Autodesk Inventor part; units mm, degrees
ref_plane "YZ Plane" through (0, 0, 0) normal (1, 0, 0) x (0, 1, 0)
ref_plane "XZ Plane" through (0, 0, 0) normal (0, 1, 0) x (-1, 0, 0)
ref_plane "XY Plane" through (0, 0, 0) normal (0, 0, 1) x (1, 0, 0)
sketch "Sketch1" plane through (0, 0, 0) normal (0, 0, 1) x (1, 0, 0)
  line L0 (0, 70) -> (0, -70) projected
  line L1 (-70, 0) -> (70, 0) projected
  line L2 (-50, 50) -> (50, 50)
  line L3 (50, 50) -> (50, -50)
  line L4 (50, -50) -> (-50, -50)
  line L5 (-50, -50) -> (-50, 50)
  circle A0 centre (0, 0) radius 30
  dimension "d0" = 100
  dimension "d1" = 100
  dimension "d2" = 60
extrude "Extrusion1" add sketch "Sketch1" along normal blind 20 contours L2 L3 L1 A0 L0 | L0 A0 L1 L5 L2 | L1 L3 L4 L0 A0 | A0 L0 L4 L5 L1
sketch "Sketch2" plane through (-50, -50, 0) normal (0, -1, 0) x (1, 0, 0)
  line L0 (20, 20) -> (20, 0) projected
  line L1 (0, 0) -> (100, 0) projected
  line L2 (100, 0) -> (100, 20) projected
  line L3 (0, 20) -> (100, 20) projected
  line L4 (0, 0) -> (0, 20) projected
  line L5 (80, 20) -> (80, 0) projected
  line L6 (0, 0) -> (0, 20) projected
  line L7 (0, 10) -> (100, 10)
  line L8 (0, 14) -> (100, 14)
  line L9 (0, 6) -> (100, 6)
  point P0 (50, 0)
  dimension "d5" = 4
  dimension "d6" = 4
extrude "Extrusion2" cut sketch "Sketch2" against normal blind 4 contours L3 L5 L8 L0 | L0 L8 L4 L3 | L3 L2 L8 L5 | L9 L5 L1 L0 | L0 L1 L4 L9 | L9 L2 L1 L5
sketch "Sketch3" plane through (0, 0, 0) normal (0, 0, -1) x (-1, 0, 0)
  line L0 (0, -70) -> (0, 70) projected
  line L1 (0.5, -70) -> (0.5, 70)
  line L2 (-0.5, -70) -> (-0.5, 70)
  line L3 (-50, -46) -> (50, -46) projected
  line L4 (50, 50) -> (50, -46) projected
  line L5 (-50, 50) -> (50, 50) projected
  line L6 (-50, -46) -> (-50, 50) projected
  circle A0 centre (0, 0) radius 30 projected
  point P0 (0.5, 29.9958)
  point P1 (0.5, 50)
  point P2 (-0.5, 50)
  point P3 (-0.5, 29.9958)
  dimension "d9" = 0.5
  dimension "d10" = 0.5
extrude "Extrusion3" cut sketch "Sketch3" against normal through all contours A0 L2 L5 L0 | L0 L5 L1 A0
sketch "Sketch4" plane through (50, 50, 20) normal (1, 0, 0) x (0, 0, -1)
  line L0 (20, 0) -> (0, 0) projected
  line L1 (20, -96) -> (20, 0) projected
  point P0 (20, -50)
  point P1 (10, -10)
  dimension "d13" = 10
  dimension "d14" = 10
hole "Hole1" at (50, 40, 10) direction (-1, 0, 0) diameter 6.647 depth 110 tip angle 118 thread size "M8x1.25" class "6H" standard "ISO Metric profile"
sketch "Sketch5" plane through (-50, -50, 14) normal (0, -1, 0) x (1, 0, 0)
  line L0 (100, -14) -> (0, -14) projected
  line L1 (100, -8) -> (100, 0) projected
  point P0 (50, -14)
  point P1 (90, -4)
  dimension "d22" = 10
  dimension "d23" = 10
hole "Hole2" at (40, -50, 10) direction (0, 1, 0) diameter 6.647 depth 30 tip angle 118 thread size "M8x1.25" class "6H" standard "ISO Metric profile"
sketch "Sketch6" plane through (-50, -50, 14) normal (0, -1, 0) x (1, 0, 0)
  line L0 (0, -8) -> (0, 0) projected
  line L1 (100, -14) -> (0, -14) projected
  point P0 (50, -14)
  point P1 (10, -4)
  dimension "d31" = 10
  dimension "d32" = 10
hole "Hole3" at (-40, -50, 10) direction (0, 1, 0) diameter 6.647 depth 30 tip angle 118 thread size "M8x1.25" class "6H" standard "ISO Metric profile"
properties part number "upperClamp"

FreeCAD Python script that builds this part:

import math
import FreeCAD as App
import Part
import Sketcher
Q = App.Units.Quantity

doc = App.newDocument("Part")
body = doc.addObject("PartDesign::Body", "Body")

# Sketch on XY plane
sketch1 = body.newObject("Sketcher::SketchObject", "Sketch")
sketch1.AttachmentSupport = (doc.getObject("XY_Plane"), [""])
sketch1.MapMode = "FlatFace"
sketch1.addGeometry([
    Part.LineSegment(App.Vector(50, 50, 0), App.Vector(-50, 50, 0)),  # 0
    Part.LineSegment(App.Vector(-50, 50, 0), App.Vector(-50, -50, 0)),  # 1
    Part.LineSegment(App.Vector(-50, -50, 0), App.Vector(50, -50, 0)),  # 2
    Part.LineSegment(App.Vector(50, -50, 0), App.Vector(50, 50, 0)),  # 3
    Part.Circle(App.Vector(0, 0, 0), App.Vector(0, 0, 1), 30),  # 4
], False)
sketch1.addConstraint([
    Sketcher.Constraint("Coincident", 0, 2, 1, 1),
    Sketcher.Constraint("Coincident", 1, 2, 2, 1),
    Sketcher.Constraint("Coincident", 2, 2, 3, 1),
    Sketcher.Constraint("Coincident", 3, 2, 0, 1),
    Sketcher.Constraint("Horizontal", 0),
    Sketcher.Constraint("Vertical", 1),
    Sketcher.Constraint("Horizontal", 2),
    Sketcher.Constraint("Vertical", 3),
    Sketcher.Constraint("Coincident", 4, 3, -1, 1),
    Sketcher.Constraint("Symmetric", 0, 2, 2, 2, -1, 1),
    Sketcher.Constraint("Equal", 2, 1),
    Sketcher.Constraint("Diameter", 4, Q("60 mm")),
    Sketcher.Constraint("DistanceX", 0, 2, 0, 1, Q("100 mm")),
])
pad1 = body.newObject("PartDesign::Pad", "Pad")
pad1.Profile = sketch1
pad1.Length = 20

# Sketch on XZ plane
sketch2 = body.newObject("Sketcher::SketchObject", "Sketch001")
sketch2.AttachmentSupport = (doc.getObject("XZ_Plane"), [""])
sketch2.MapMode = "FlatFace"
sketch2.AttachmentOffset = App.Placement(App.Vector(0, 0, 50), App.Rotation())
sketch2.addGeometry([
    Part.LineSegment(App.Vector(-50, 20, 0), App.Vector(-50, 14, 0)),  # 0
    Part.LineSegment(App.Vector(-50, 14, 0), App.Vector(50, 14, 0)),  # 1
    Part.LineSegment(App.Vector(50, 14, 0), App.Vector(50, 20, 0)),  # 2
    Part.LineSegment(App.Vector(50, 20, 0), App.Vector(-50, 20, 0)),  # 3
    Part.LineSegment(App.Vector(-50, 6, 0), App.Vector(-50, 0, 0)),  # 4
    Part.LineSegment(App.Vector(-50, 0, 0), App.Vector(50, 0, 0)),  # 5
    Part.LineSegment(App.Vector(50, 0, 0), App.Vector(50, 6, 0)),  # 6
    Part.LineSegment(App.Vector(50, 6, 0), App.Vector(-50, 6, 0)),  # 7
], False)
sketch2.addConstraint([
    Sketcher.Constraint("Coincident", 0, 2, 1, 1),
    Sketcher.Constraint("Coincident", 1, 2, 2, 1),
    Sketcher.Constraint("Coincident", 2, 2, 3, 1),
    Sketcher.Constraint("Coincident", 3, 2, 0, 1),
    Sketcher.Constraint("Coincident", 4, 2, 5, 1),
    Sketcher.Constraint("Coincident", 5, 2, 6, 1),
    Sketcher.Constraint("Coincident", 6, 2, 7, 1),
    Sketcher.Constraint("Coincident", 7, 2, 4, 1),
    Sketcher.Constraint("Vertical", 0),
    Sketcher.Constraint("Horizontal", 1),
    Sketcher.Constraint("Vertical", 2),
    Sketcher.Constraint("Horizontal", 3),
    Sketcher.Constraint("Vertical", 4),
    Sketcher.Constraint("Horizontal", 5),
    Sketcher.Constraint("Vertical", 6),
    Sketcher.Constraint("Horizontal", 7),
    Sketcher.Constraint("Symmetric", 4, 2, 5, 2, -1, 1),
    Sketcher.Constraint("Vertical", 3, 2, 4, 2),
    Sketcher.Constraint("Vertical", 2, 2, 5, 2),
    Sketcher.Constraint("Equal", 2, 4),
    Sketcher.Constraint("DistanceX", 1, 1, 1, 2, Q("100 mm")),
    Sketcher.Constraint("DistanceY", 0, 2, 0, 1, Q("6 mm")),
    Sketcher.Constraint("DistanceY", -1, 1, 0, 2, Q("14 mm")),
])
pocket1 = body.newObject("PartDesign::Pocket", "Pocket")
pocket1.Profile = sketch2
pocket1.Length = 4

# Sketch on XY plane
sketch3 = body.newObject("Sketcher::SketchObject", "Sketch002")
sketch3.AttachmentSupport = (doc.getObject("XY_Plane"), [""])
sketch3.MapMode = "FlatFace"
sketch3.addGeometry([
    Part.ArcOfCircle(Part.Circle(App.Vector(0, 0, 0), App.Vector(0, 0, 1), 30), math.radians(89.045026), math.radians(90.954974)),
    Part.LineSegment(App.Vector(-0.5, 29.995833, 0), App.Vector(-0.5, 50, 0)),
    Part.LineSegment(App.Vector(-0.5, 50, 0), App.Vector(0.5, 50, 0)),
    Part.LineSegment(App.Vector(0.5, 50, 0), App.Vector(0.5, 29.995833, 0)),
], False)
sketch3.addConstraint([
    Sketcher.Constraint("Coincident", 0, 2, 1, 1),
    Sketcher.Constraint("Coincident", 1, 2, 2, 1),
    Sketcher.Constraint("Coincident", 2, 2, 3, 1),
    Sketcher.Constraint("Coincident", 3, 2, 0, 1),
    Sketcher.Constraint("Vertical", 1),
    Sketcher.Constraint("Horizontal", 2),
    Sketcher.Constraint("Vertical", 3),
    Sketcher.Constraint("Coincident", 0, 3, -1, 1),
    Sketcher.Constraint("Horizontal", 0, 2, 3, 2),
    Sketcher.Constraint("Radius", 0, Q("30 mm")),
    Sketcher.Constraint("DistanceX", 0, 2, -1, 1, Q("0.5 mm")),
    Sketcher.Constraint("DistanceY", -1, 1, 1, 2, Q("50 mm")),
])
pocket2 = body.newObject("PartDesign::Pocket", "Pocket001")
pocket2.Profile = sketch3
pocket2.Type = "ThroughAll"
pocket2.Reversed = True

# Sketch on YZ plane
sketch4 = body.newObject("Sketcher::SketchObject", "Sketch003")
sketch4.AttachmentSupport = (doc.getObject("YZ_Plane"), [""])
sketch4.MapMode = "FlatFace"
sketch4.AttachmentOffset = App.Placement(App.Vector(0, 0, 50), App.Rotation())
sketch4.addGeometry(Part.Circle(App.Vector(40, 10, 0), App.Vector(0, 0, 1), 3.3235), False)
sketch4.addConstraint([
    Sketcher.Constraint("Diameter", 0, Q("6.647 mm")),
    Sketcher.Constraint("DistanceX", -1, 1, 0, 3, Q("40 mm")),
    Sketcher.Constraint("DistanceY", -1, 1, 0, 3, Q("10 mm")),
])
doc.recompute()
hole = body.newObject("PartDesign::Hole", "Hole")
hole.Profile = sketch4
hole.ThreadType = "None"
hole.Diameter = 6.647
hole.DepthType = "Dimension"
hole.Depth = 110
hole.DrillPoint = "Angled"
hole.DrillPointAngle = 118

# Sketch on XZ plane
sketch5 = body.newObject("Sketcher::SketchObject", "Sketch004")
sketch5.AttachmentSupport = (doc.getObject("XZ_Plane"), [""])
sketch5.MapMode = "FlatFace"
sketch5.AttachmentOffset = App.Placement(App.Vector(0, 0, 50), App.Rotation())
sketch5.addGeometry(Part.Circle(App.Vector(40, 10, 0), App.Vector(0, 0, 1), 3.3235), False)
sketch5.addConstraint([
    Sketcher.Constraint("Diameter", 0, Q("6.647 mm")),
    Sketcher.Constraint("DistanceX", -1, 1, 0, 3, Q("40 mm")),
    Sketcher.Constraint("DistanceY", -1, 1, 0, 3, Q("10 mm")),
])
doc.recompute()
hole2 = body.newObject("PartDesign::Hole", "Hole001")
hole2.Profile = sketch5
hole2.ThreadType = "None"
hole2.Diameter = 6.647
hole2.DepthType = "Dimension"
hole2.Depth = 30
hole2.DrillPoint = "Angled"
hole2.DrillPointAngle = 118

# Sketch on XZ plane
sketch6 = body.newObject("Sketcher::SketchObject", "Sketch005")
sketch6.AttachmentSupport = (doc.getObject("XZ_Plane"), [""])
sketch6.MapMode = "FlatFace"
sketch6.AttachmentOffset = App.Placement(App.Vector(0, 0, 50), App.Rotation())
sketch6.addGeometry(Part.Circle(App.Vector(-40, 10, 0), App.Vector(0, 0, 1), 3.3235), False)
sketch6.addConstraint([
    Sketcher.Constraint("Diameter", 0, Q("6.647 mm")),
    Sketcher.Constraint("DistanceX", 0, 3, -1, 1, Q("40 mm")),
    Sketcher.Constraint("DistanceY", -1, 1, 0, 3, Q("10 mm")),
])
doc.recompute()
hole3 = body.newObject("PartDesign::Hole", "Hole002")
hole3.Profile = sketch6
hole3.ThreadType = "None"
hole3.Diameter = 6.647
hole3.DepthType = "Dimension"
hole3.Depth = 30
hole3.DrillPoint = "Angled"
hole3.DrillPointAngle = 118

doc.recompute()
